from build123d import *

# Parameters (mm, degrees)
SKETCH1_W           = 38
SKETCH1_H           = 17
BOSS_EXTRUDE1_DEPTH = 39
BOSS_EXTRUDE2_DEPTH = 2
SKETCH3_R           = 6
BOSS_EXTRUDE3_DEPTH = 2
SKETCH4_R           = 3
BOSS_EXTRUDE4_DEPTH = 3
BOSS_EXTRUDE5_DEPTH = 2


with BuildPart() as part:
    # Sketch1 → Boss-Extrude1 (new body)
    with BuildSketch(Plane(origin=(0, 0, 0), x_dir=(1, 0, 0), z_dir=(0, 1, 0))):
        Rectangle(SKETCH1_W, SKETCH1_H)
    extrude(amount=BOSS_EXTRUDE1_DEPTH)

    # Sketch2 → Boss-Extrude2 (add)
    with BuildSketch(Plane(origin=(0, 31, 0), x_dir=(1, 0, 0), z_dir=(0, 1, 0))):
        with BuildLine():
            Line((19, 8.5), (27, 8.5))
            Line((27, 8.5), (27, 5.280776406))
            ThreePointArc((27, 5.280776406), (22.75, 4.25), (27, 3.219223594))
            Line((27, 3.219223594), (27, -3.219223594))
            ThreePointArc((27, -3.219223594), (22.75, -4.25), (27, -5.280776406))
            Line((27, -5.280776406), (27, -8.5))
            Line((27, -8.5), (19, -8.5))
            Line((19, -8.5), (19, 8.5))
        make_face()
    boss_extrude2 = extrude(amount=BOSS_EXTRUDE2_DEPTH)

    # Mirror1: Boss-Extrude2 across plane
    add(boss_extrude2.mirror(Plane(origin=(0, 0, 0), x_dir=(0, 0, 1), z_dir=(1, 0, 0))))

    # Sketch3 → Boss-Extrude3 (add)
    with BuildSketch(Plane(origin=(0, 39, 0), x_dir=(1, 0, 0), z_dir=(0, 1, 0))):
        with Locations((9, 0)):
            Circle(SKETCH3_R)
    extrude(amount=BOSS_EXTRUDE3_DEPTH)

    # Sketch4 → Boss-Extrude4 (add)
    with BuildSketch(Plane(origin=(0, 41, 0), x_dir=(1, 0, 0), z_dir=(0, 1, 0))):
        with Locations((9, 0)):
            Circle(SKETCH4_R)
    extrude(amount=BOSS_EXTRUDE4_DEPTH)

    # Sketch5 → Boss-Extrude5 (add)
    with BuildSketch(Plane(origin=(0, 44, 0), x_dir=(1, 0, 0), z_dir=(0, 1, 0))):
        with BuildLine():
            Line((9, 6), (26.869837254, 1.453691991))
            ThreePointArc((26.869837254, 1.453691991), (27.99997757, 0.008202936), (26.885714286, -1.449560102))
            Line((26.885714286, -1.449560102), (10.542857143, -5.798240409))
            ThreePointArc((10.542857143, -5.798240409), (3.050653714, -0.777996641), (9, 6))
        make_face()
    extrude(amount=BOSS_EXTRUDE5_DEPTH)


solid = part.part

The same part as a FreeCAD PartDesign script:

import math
import FreeCAD as App
import Part
import Sketcher
from FreeCAD import Vector
Q = App.Units.Quantity

doc = App.newDocument("Part")
params = doc.addObject("Spreadsheet::Sheet", "Params")
for row, (alias, value) in enumerate([
    ("sketch1_width", "38 mm"),
    ("sketch1_height", "17 mm"),
    ("pad1_length", "39 mm"),
    ("sketch2_width", "8 mm"),
    ("sketch2_height", "17 mm"),
    ("sketch2_radius", "2.25 mm"),
    ("pad2_length", "2 mm"),
    ("sketch3_diameter", "12 mm"),
    ("pad3_length", "2 mm"),
    ("sketch4_diameter", "6 mm"),
    ("pad4_length", "3 mm"),
    ("sketch5_radius", "6 mm"),
    ("sketch5_radius2", "1.5 mm"),
    ("pad5_length", "2 mm"),
], start=1):
    params.set(f"A{row}", alias)
    params.set(f"B{row}", "=" + value)
    params.setAlias(f"B{row}", alias)

body = doc.addObject("PartDesign::Body", "Body")

# Sketch on XZ plane
sketch1 = body.newObject("Sketcher::SketchObject", "Sketch")
sketch1.AttachmentSupport = (doc.getObject("XZ_Plane"), [""])
sketch1.MapMode = "FlatFace"
sketch1.addGeometry([
    Part.LineSegment(Vector(-19, -8, 0), Vector(-19, 8, 0)),
    Part.LineSegment(Vector(-19, 8, 0), Vector(19, 8, 0)),
    Part.LineSegment(Vector(19, 8, 0), Vector(19, -8, 0)),
    Part.LineSegment(Vector(19, -8, 0), Vector(-19, -8, 0)),
], False)
sketch1.addConstraint([
    Sketcher.Constraint("Coincident", 0, 2, 1, 1),
    Sketcher.Constraint("Coincident", 1, 2, 2, 1),
    Sketcher.Constraint("Coincident", 2, 2, 3, 1),
    Sketcher.Constraint("Coincident", 3, 2, 0, 1),
    Sketcher.Constraint("Vertical", 0),
    Sketcher.Constraint("Horizontal", 1),
    Sketcher.Constraint("Vertical", 2),
    Sketcher.Constraint("Horizontal", 3),
    Sketcher.Constraint("Symmetric", 0, 2, 2, 2, -1, 1),
    Sketcher.Constraint("DistanceX", 1, 1, 1, 2, Q("38 mm")),
    Sketcher.Constraint("DistanceY", 0, 1, 0, 2, Q("17 mm")),
])
sketch1.setExpression("Constraints[9]", "Params.sketch1_width")
sketch1.setExpression("Constraints[10]", "Params.sketch1_height")
pad1 = body.newObject("PartDesign::Pad", "Pad")
pad1.Profile = sketch1
pad1.setExpression("Length", "Params.pad1_length")
pad1.Reversed = True

# Sketch on XZ plane
sketch2 = body.newObject("Sketcher::SketchObject", "Sketch001")
sketch2.AttachmentSupport = (doc.getObject("XZ_Plane"), [""])
sketch2.MapMode = "FlatFace"
sketch2.AttachmentOffset = App.Placement(Vector(0, 0, -31), App.Rotation())
sketch2.addGeometry([
    Part.LineSegment(Vector(27, -8.5, 0), Vector(19, -8.5, 0)),  # 0
    Part.LineSegment(Vector(19, -8.5, 0), Vector(19, 8.5, 0)),  # 1
    Part.LineSegment(Vector(19, 8.5, 0), Vector(27, 8.5, 0)),  # 2
    Part.LineSegment(Vector(27, 8.5, 0), Vector(27, 5.3, 0)),  # 3
    Part.ArcOfCircle(Part.Circle(Vector(25, 4.2, 0), Vector(0, 0, 1), 2.2), math.radians(27), math.radians(333)),  # 4
    Part.LineSegment(Vector(27, 3.2, 0), Vector(27, -3.2, 0)),  # 5
    Part.ArcOfCircle(Part.Circle(Vector(25, -4.2, 0), Vector(0, 0, 1), 2.2), math.radians(27), math.radians(333)),  # 6
    Part.LineSegment(Vector(27, -5.3, 0), Vector(27, -8.5, 0)),  # 7
], False)
sketch2.addConstraint([
    Sketcher.Constraint("Coincident", 0, 2, 1, 1),
    Sketcher.Constraint("Coincident", 1, 2, 2, 1),
    Sketcher.Constraint("Coincident", 2, 2, 3, 1),
    Sketcher.Constraint("Coincident", 3, 2, 4, 1),
    Sketcher.Constraint("Coincident", 4, 2, 5, 1),
    Sketcher.Constraint("Coincident", 5, 2, 6, 1),
    Sketcher.Constraint("Coincident", 6, 2, 7, 1),
    Sketcher.Constraint("Coincident", 7, 2, 0, 1),
    Sketcher.Constraint("Horizontal", 0),
    Sketcher.Constraint("Vertical", 1),
    Sketcher.Constraint("Horizontal", 2),
    Sketcher.Constraint("Vertical", 3),
    Sketcher.Constraint("Vertical", 5),
    Sketcher.Constraint("Vertical", 7),
    Sketcher.Constraint("Equal", 4, 6),
    Sketcher.Constraint("Symmetric", 4, 3, 6, 3, -1),
    Sketcher.Constraint("Symmetric", 2, 2, 7, 2, -1),
    Sketcher.Constraint("Vertical", 3, 2, 4, 2),
    Sketcher.Constraint("DistanceX", 0, 2, 0, 1, Q("8 mm")),
    Sketcher.Constraint("DistanceY", 1, 1, 1, 2, Q("17 mm")),
    Sketcher.Constraint("Radius", 4, Q("2.25 mm")),
    Sketcher.Constraint("DistanceX", -1, 1, 4, 3, Q("25 mm")),
    Sketcher.Constraint("DistanceX", -1, 1, 0, 2, Q("19 mm")),
    Sketcher.Constraint("DistanceY", 6, 3, 4, 3, Q("8.5 mm")),
])
sketch2.setExpression("Constraints[18]", "Params.sketch2_width")
sketch2.setExpression("Constraints[19]", "Params.sketch2_height")
sketch2.setExpression("Constraints[20]", "Params.sketch2_radius")
pad2 = body.newObject("PartDesign::Pad", "Pad001")
pad2.Profile = sketch2
pad2.setExpression("Length", "Params.pad2_length")
pad2.Reversed = True
doc.recompute()

mirrored = body.newObject("PartDesign::Mirrored", "Mirrored")
mirrored.Originals = [pad2]
mirrored.MirrorPlane = (doc.getObject("YZ_Plane"), [""])
body.Tip = mirrored

# Sketch on XZ plane
sketch3 = body.newObject("Sketcher::SketchObject", "Sketch002")
sketch3.AttachmentSupport = (doc.getObject("XZ_Plane"), [""])
sketch3.MapMode = "FlatFace"
sketch3.AttachmentOffset = App.Placement(Vector(0, 0, -39), App.Rotation())
sketch3.addGeometry(Part.Circle(Vector(9, 0, 0), Vector(0, 0, 1), 6), False)
sketch3.addConstraint([
    Sketcher.Constraint("PointOnObject", 0, 3, -1),
    Sketcher.Constraint("Diameter", 0, Q("12 mm")),
    Sketcher.Constraint("DistanceX", -1, 1, 0, 3, Q("9 mm")),
])
sketch3.setExpression("Constraints[1]", "Params.sketch3_diameter")
pad3 = body.newObject("PartDesign::Pad", "Pad002")
pad3.Profile = sketch3
pad3.setExpression("Length", "Params.pad3_length")
pad3.Reversed = True

# Sketch on XZ plane
sketch4 = body.newObject("Sketcher::SketchObject", "Sketch003")
sketch4.AttachmentSupport = (doc.getObject("XZ_Plane"), [""])
sketch4.MapMode = "FlatFace"
sketch4.AttachmentOffset = App.Placement(Vector(0, 0, -41), App.Rotation())
sketch4.addGeometry(Part.Circle(Vector(9, 0, 0), Vector(0, 0, 1), 3), False)
sketch4.addConstraint([
    Sketcher.Constraint("PointOnObject", 0, 3, -1),
    Sketcher.Constraint("Diameter", 0, Q("6 mm")),
    Sketcher.Constraint("DistanceX", -1, 1, 0, 3, Q("9 mm")),
])
sketch4.setExpression("Constraints[1]", "Params.sketch4_diameter")
pad4 = body.newObject("PartDesign::Pad", "Pad003")
pad4.Profile = sketch4
pad4.setExpression("Length", "Params.pad4_length")
pad4.Reversed = True

# Sketch on XZ plane
sketch5 = body.newObject("Sketcher::SketchObject", "Sketch004")
sketch5.AttachmentSupport = (doc.getObject("XZ_Plane"), [""])
sketch5.MapMode = "FlatFace"
sketch5.AttachmentOffset = App.Placement(Vector(0, 0, -44), App.Rotation())
sketch5.addGeometry([
    Part.LineSegment(Vector(26.9, -1.5, 0), Vector(9, -6, 0)),
    Part.ArcOfCircle(Part.Circle(Vector(9, 0, 0), Vector(0, 0, 1), 6), math.radians(75), math.radians(270)),
    Part.LineSegment(Vector(10.5, 5.8, 0), Vector(26.9, 1.4, 0)),
    Part.ArcOfCircle(Part.Circle(Vector(26.5, 0, 0), Vector(0, 0, 1), 1.5), math.radians(-76), math.radians(75)),
], False)
sketch5.addConstraint([
    Sketcher.Constraint("Coincident", 0, 2, 1, 2),
    Sketcher.Constraint("Tangent", 1, 1, 2, 1),
    Sketcher.Constraint("Tangent", 2, 2, 3, 2),
    Sketcher.Constraint("Tangent", 3, 1, 0, 1),
    Sketcher.Constraint("PointOnObject", 1, 3, -1),
    Sketcher.Constraint("PointOnObject", 3, 3, -1),
    Sketcher.Constraint("Vertical", 1, 3, 0, 2),
    Sketcher.Constraint("Radius", 1, Q("6 mm")),
    Sketcher.Constraint("Radius", 3, Q("1.5 mm")),
    Sketcher.Constraint("DistanceX", -1, 1, 1, 3, Q("9 mm")),
    Sketcher.Constraint("DistanceX", -1, 1, 3, 3, Q("26.5 mm")),
])
sketch5.setExpression("Constraints[7]", "Params.sketch5_radius")
sketch5.setExpression("Constraints[8]", "Params.sketch5_radius2")
pad5 = body.newObject("PartDesign::Pad", "Pad004")
pad5.Profile = sketch5
pad5.setExpression("Length", "Params.pad5_length")
pad5.Reversed = True

doc.recompute()
